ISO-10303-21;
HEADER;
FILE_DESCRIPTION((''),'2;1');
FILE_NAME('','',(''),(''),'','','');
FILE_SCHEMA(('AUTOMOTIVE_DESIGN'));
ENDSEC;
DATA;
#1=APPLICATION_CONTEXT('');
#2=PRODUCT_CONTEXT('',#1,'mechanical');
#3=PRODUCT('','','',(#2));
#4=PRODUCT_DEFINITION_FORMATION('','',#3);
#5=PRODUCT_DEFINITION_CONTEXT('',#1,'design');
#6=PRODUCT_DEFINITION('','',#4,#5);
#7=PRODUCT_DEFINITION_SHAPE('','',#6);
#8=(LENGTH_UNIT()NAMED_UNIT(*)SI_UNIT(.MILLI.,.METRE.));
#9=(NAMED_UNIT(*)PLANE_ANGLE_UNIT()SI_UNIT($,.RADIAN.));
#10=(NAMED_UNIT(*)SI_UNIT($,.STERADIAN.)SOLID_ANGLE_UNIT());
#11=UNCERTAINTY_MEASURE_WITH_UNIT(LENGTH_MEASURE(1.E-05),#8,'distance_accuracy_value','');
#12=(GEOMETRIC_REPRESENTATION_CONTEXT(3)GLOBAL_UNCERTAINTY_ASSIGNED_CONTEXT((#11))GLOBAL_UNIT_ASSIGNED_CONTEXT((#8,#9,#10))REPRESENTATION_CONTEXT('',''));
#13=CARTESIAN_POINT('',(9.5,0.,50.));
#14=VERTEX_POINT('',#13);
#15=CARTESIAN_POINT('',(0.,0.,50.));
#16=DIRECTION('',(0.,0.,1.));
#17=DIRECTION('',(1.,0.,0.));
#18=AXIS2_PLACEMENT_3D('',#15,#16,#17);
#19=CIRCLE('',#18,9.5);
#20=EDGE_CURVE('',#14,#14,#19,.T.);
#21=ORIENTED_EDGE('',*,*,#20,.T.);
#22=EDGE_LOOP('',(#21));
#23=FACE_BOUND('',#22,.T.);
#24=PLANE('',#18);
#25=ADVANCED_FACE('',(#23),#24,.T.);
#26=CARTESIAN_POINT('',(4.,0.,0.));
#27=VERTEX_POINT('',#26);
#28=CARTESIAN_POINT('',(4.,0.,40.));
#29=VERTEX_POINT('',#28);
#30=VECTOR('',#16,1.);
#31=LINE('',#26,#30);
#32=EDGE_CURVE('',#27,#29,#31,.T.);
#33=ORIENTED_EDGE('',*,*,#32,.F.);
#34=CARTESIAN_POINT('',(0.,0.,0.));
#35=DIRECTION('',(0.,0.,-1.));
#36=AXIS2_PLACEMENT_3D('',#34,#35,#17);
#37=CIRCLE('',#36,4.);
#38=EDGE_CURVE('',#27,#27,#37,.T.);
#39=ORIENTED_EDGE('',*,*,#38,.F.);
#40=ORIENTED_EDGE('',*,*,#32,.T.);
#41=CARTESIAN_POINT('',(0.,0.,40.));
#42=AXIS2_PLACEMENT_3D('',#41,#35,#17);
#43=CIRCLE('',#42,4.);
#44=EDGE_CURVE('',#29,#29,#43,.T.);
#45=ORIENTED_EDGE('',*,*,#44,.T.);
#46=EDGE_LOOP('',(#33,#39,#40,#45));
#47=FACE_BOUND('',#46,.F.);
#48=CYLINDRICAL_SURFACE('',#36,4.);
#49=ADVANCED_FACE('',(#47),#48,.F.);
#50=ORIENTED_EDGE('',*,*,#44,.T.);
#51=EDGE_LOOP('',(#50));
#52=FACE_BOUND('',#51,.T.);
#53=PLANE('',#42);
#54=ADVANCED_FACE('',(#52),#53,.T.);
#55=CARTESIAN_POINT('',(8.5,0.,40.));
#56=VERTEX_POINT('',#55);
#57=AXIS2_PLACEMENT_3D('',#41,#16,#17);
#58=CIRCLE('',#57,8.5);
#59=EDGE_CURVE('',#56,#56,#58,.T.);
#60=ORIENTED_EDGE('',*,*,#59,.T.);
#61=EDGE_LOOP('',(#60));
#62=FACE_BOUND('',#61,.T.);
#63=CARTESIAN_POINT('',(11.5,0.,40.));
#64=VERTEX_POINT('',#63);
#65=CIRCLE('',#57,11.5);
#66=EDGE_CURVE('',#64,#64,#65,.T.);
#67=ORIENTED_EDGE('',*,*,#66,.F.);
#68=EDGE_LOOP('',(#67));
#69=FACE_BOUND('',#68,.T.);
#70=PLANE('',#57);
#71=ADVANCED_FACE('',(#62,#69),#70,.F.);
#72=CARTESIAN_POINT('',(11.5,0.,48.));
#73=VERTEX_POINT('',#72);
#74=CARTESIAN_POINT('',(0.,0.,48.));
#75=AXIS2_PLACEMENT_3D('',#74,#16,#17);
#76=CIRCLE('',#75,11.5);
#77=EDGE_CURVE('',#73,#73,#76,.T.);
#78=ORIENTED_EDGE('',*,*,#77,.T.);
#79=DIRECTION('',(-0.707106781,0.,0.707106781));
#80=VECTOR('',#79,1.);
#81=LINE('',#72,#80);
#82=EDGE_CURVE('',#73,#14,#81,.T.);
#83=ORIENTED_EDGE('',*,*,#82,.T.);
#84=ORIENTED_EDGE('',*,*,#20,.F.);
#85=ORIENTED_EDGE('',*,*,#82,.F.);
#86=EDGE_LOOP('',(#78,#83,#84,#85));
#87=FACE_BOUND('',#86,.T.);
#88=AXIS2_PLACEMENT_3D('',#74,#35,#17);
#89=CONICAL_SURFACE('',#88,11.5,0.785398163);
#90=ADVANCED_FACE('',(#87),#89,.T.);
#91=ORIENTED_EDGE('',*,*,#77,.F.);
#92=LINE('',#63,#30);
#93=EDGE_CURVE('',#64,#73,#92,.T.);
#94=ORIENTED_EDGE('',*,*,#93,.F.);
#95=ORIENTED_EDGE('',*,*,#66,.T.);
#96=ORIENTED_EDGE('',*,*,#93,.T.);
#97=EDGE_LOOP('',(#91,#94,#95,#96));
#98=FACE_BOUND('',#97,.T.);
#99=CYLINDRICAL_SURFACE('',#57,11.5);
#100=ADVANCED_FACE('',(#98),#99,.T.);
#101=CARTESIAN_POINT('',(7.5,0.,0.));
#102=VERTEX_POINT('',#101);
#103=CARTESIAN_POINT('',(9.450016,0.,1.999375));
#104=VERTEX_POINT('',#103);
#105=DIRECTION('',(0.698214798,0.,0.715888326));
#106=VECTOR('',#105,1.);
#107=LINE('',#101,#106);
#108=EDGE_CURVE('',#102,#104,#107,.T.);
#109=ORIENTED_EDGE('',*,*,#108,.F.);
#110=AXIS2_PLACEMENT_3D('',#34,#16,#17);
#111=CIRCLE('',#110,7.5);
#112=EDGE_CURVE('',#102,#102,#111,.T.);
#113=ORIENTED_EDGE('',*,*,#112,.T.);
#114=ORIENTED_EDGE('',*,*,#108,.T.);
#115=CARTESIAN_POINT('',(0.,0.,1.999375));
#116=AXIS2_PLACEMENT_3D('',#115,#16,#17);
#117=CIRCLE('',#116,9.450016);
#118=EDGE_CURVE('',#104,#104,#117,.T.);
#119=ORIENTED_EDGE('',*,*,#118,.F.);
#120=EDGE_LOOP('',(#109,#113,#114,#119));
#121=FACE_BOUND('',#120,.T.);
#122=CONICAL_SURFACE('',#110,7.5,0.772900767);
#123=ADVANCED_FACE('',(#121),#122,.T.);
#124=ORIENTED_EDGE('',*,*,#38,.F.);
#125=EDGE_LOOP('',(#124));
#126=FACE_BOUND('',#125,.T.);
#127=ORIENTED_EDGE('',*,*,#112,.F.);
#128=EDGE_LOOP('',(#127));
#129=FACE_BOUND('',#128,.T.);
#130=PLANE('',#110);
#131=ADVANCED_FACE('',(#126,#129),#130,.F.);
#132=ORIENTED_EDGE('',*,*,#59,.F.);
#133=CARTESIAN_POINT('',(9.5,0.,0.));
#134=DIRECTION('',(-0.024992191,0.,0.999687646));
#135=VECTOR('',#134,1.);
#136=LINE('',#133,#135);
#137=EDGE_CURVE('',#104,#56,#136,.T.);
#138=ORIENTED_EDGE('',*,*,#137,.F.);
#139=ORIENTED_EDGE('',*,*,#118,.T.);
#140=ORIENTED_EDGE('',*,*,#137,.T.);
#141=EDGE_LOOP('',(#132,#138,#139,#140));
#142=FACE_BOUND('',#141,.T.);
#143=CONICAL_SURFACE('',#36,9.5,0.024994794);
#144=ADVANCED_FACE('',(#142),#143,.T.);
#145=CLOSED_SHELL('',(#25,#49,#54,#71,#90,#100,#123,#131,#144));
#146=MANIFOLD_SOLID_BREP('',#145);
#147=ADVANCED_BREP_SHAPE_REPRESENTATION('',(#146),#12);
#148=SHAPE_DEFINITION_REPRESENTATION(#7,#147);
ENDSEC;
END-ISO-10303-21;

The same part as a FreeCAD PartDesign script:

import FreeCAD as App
import Part
import Sketcher

V = App.Vector


def edges_at(feature, points):
    """Names of the edges that pass closest to the given points."""
    edges = feature.Shape.Edges
    near = lambda p: min(range(len(edges)), key=lambda i: edges[i].distToShape(Part.Vertex(*p))[0])
    return sorted({f"Edge{near(p) + 1}" for p in points})


def add_polygon(sketch, points):
    """Adds a closed chain of lines whose ends are joined by coincident constraints."""
    first, n = sketch.GeometryCount, len(points)
    for a, b in zip(points, points[1:] + points[:1]):
        sketch.addGeometry(Part.LineSegment(App.Vector(*a, 0), App.Vector(*b, 0)), False)
    for i in range(n):
        sketch.addConstraint(Sketcher.Constraint("Coincident", first + i, 2, first + (i + 1) % n, 1))

doc = App.newDocument("Part")
body = doc.addObject("PartDesign::Body", "Body")

# Sketch on XZ plane
sketch1 = body.newObject("Sketcher::SketchObject", "Sketch")
sketch1.AttachmentSupport = (doc.getObject("XZ_Plane"), [""])
sketch1.MapMode = "FlatFace"
add_polygon(sketch1, [(0, 0), (9.5, 0), (8.5, 40), (11.5, 40), (11.5, 50), (0, 50)])  # lines 0-5
sketch1.addConstraint([
    Sketcher.Constraint("Horizontal", 0),
    Sketcher.Constraint("Horizontal", 2),
    Sketcher.Constraint("Vertical", 3),
    Sketcher.Constraint("Horizontal", 4),
    Sketcher.Constraint("Vertical", 5),
    Sketcher.Constraint("Coincident", 5, 2, -1, 1),
    Sketcher.Constraint("DistanceX", 2, 1, 2, 2, 3.0),
    Sketcher.Constraint("DistanceY", 3, 1, 3, 2, 10.0),
    Sketcher.Constraint("DistanceY", 5, 2, 5, 1, 50.0),
    Sketcher.Constraint("DistanceX", 0, 1, 0, 2, 9.5),
    Sketcher.Constraint("DistanceX", 4, 2, 4, 1, 11.5),
])
revolution = body.newObject("PartDesign::Revolution", "Revolution")
revolution.Profile = sketch1
revolution.ReferenceAxis = (sketch1, ["V_Axis"])
revolution.Angle = 360
doc.recompute()

chamfer = body.newObject("PartDesign::Chamfer", "Chamfer")
chamfer.Base = (revolution, edges_at(revolution, [(-9.5, 0, 0)]))
chamfer.Size = 2
doc.recompute()

chamfer2 = body.newObject("PartDesign::Chamfer", "Chamfer001")
chamfer2.Base = (chamfer, edges_at(chamfer, [(-11.5, 0, 50)]))
chamfer2.Size = 2

# Sketch on XY plane
sketch2 = body.newObject("Sketcher::SketchObject", "Sketch001")
sketch2.AttachmentSupport = (doc.getObject("XY_Plane"), [""])
sketch2.MapMode = "FlatFace"
sketch2.addGeometry(Part.Circle(V(0, 0, 0), V(0, 0, 1), 4), False)
sketch2.addConstraint([
    Sketcher.Constraint("Coincident", 0, 3, -1, 1),
    Sketcher.Constraint("Diameter", 0, 8.0),
])
pocket1 = body.newObject("PartDesign::Pocket", "Pocket")
pocket1.Profile = sketch2
pocket1.Length = 40
pocket1.Reversed = True

doc.recompute()
